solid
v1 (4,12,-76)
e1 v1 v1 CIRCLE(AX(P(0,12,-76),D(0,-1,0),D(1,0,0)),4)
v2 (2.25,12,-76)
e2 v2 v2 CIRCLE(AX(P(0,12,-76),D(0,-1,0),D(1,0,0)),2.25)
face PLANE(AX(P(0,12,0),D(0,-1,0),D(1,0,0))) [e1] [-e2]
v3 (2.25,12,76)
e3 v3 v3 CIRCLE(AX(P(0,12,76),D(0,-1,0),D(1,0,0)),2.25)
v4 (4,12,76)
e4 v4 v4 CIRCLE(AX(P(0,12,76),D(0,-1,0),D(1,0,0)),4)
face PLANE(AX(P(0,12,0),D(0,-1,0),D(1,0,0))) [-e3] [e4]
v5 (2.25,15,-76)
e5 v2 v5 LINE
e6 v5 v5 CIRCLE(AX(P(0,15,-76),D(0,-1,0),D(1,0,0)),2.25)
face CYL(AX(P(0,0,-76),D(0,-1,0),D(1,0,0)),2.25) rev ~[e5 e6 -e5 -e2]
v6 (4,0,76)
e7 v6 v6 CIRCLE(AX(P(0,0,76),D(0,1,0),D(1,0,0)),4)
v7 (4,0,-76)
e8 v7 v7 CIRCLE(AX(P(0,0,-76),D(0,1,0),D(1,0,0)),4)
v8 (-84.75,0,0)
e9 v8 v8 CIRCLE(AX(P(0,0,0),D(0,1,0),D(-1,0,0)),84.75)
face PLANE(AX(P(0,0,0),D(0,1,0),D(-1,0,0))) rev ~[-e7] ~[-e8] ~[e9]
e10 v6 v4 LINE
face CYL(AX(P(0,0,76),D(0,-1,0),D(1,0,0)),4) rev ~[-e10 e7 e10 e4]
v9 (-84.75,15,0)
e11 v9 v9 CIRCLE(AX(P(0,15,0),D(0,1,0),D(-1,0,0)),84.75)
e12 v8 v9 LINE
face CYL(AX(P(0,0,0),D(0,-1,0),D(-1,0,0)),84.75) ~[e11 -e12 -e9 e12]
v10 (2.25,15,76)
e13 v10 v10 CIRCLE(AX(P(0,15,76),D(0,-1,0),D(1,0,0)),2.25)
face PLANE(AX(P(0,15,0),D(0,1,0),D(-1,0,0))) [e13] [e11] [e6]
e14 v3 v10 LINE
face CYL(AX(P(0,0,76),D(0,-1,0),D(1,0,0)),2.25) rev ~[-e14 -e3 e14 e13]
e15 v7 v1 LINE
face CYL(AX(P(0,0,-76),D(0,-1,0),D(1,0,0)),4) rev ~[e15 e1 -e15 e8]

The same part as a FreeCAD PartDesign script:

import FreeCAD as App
import Part
import Sketcher

V = App.Vector
Q = App.Units.Quantity

doc = App.newDocument("Part")
body = doc.addObject("PartDesign::Body", "Body")

sketch1 = body.newObject("Sketcher::SketchObject", "Sketch")
sketch1.AttachmentSupport = (doc.getObject("XZ_Plane"), [""])
sketch1.MapMode = "FlatFace"
sketch1.addGeometry(Part.Circle(V(0, 0, 0), V(0, 0, 1), 84.75), False)
sketch1.addConstraint([
    Sketcher.Constraint("Coincident", 0, 3, -1, 1),
    Sketcher.Constraint("Diameter", 0, Q("169.5 mm")),
])
pad1 = body.newObject("PartDesign::Pad", "Pad")
pad1.Profile = sketch1
pad1.Length = 15
pad1.Reversed = True

sketch2 = body.newObject("Sketcher::SketchObject", "Sketch001")
sketch2.AttachmentSupport = (doc.getObject("XZ_Plane"), [""])
sketch2.MapMode = "FlatFace"
sketch2.addGeometry([
    Part.Circle(V(0, 76, 0), V(0, 0, 1), 2.25),
    Part.Circle(V(0, -76, 0), V(0, 0, 1), 2.25),
], False)
sketch2.addConstraint([
    Sketcher.Constraint("Equal", 0, 1),
    Sketcher.Constraint("Symmetric", 0, 3, 1, 3, -1, 1),
    Sketcher.Constraint("PointOnObject", 0, 3, -2),
    Sketcher.Constraint("Diameter", 0, Q("4.5 mm")),
    Sketcher.Constraint("DistanceY", 1, 3, 0, 3, Q("152 mm")),
])
pocket1 = body.newObject("PartDesign::Pocket", "Pocket")
pocket1.Profile = sketch2
pocket1.Type = "ThroughAll"

sketch3 = body.newObject("Sketcher::SketchObject", "Sketch002")
sketch3.AttachmentSupport = (doc.getObject("XZ_Plane"), [""])
sketch3.MapMode = "FlatFace"
sketch3.addGeometry([
    Part.Circle(V(0, 76, 0), V(0, 0, 1), 4),
    Part.Circle(V(0, -76, 0), V(0, 0, 1), 4),
], False)
sketch3.addConstraint([
    Sketcher.Constraint("Equal", 0, 1),
    Sketcher.Constraint("Symmetric", 0, 3, 1, 3, -1, 1),
    Sketcher.Constraint("PointOnObject", 0, 3, -2),
    Sketcher.Constraint("Diameter", 0, Q("8 mm")),
    Sketcher.Constraint("DistanceY", 1, 3, 0, 3, Q("152 mm")),
])
pocket2 = body.newObject("PartDesign::Pocket", "Pocket001")
pocket2.Profile = sketch3
pocket2.Length = 12

doc.recompute()
